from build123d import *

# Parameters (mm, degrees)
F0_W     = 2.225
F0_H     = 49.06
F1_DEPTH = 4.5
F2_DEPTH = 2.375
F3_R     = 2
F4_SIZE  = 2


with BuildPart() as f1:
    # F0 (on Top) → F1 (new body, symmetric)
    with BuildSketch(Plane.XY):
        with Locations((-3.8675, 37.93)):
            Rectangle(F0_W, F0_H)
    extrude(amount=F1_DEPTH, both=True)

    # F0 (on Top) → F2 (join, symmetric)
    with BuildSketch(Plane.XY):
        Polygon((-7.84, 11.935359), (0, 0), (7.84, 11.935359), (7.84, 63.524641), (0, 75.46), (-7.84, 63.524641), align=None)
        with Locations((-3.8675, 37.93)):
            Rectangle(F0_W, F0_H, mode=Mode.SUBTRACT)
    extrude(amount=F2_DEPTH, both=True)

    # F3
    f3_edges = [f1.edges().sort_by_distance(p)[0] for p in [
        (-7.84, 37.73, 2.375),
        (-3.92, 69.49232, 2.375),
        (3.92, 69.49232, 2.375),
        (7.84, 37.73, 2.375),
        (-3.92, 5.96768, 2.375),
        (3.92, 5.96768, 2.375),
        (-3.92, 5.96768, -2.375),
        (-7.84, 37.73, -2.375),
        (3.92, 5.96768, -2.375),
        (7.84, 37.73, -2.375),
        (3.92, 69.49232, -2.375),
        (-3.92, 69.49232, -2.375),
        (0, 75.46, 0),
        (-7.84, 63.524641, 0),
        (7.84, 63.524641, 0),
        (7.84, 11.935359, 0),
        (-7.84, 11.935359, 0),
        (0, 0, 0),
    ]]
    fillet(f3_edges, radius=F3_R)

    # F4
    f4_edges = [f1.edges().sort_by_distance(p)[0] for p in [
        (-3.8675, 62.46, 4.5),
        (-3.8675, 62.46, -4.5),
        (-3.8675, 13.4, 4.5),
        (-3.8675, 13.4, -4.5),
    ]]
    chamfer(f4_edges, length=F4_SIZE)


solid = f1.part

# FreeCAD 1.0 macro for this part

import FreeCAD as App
import Part
import Sketcher
from FreeCAD import Vector


def edges_at(feature, points):
    """Names of the edges that pass closest to the given points."""
    edges = feature.Shape.Edges
    near = lambda p: min(range(len(edges)), key=lambda i: edges[i].distToShape(Part.Vertex(*p))[0])
    return sorted({f"Edge{near(p) + 1}" for p in points})


def add_polygon(sketch, points):
    """Adds a closed chain of lines whose ends are joined by coincident constraints."""
    first, n = sketch.GeometryCount, len(points)
    for a, b in zip(points, points[1:] + points[:1]):
        sketch.addGeometry(Part.LineSegment(App.Vector(*a, 0), App.Vector(*b, 0)), False)
    for i in range(n):
        sketch.addConstraint(Sketcher.Constraint("Coincident", first + i, 2, first + (i + 1) % n, 1))

doc = App.newDocument("Part")
body = doc.addObject("PartDesign::Body", "Body")

# Sketch on XY plane
sketch1 = body.newObject("Sketcher::SketchObject", "Sketch")
sketch1.AttachmentSupport = (doc.getObject("XY_Plane"), [""])
sketch1.MapMode = "FlatFace"
add_polygon(sketch1, [(-5, 62.5), (-5, 13.4), (-2.8, 13.4), (-2.8, 62.5)])  # lines 0-3
sketch1.addConstraint([
    Sketcher.Constraint("Vertical", 0),
    Sketcher.Constraint("Horizontal", 1),
    Sketcher.Constraint("Vertical", 2),
    Sketcher.Constraint("Horizontal", 3),
    Sketcher.Constraint("DistanceY", 0, 2, 0, 1, 49.06),
    Sketcher.Constraint("DistanceY", -1, 1, 0, 2, 13.4),
    Sketcher.Constraint("DistanceX", 1, 1, 1, 2, 2.225),
    Sketcher.Constraint("DistanceX", 0, 2, -1, 1, 4.98),
])
pad1 = body.newObject("PartDesign::Pad", "Pad")
pad1.Profile = sketch1
pad1.Length = 9
pad1.Midplane = True

# Sketch on XY plane
sketch2 = body.newObject("Sketcher::SketchObject", "Sketch001")
sketch2.AttachmentSupport = (doc.getObject("XY_Plane"), [""])
sketch2.MapMode = "FlatFace"
add_polygon(sketch2, [(-7.8, 11.9), (0, 0), (7.8, 11.9), (7.8, 63.5), (0, 75.5), (-7.8, 63.5)])  # lines 0-5
add_polygon(sketch2, [(-2.8, 13.4), (-5, 13.4), (-5, 62.5), (-2.8, 62.5)])  # lines 6-9
sketch2.addConstraint([
    Sketcher.Constraint("Vertical", 2),
    Sketcher.Constraint("Vertical", 5),
    Sketcher.Constraint("Horizontal", 6),
    Sketcher.Constraint("Vertical", 7),
    Sketcher.Constraint("Horizontal", 8),
    Sketcher.Constraint("Vertical", 9),
    Sketcher.Constraint("Coincident", 0, 2, -1, 1),
    Sketcher.Constraint("Symmetric", 2, 2, 4, 2, -2),
    Sketcher.Constraint("PointOnObject", 3, 2, -2),
    Sketcher.Constraint("Parallel", 0, 3),
    Sketcher.Constraint("Parallel", 1, 4),
    Sketcher.Constraint("DistanceY", 7, 2, 3, 2, 13.0),
    Sketcher.Constraint("DistanceY", 7, 1, 7, 2, 49.06),
    Sketcher.Constraint("DistanceY", -1, 1, 6, 2, 13.4),
    Sketcher.Constraint("Distance", 0, 14.28),
    Sketcher.Constraint("DistanceX", 6, 2, 6, 1, 2.225),
    Sketcher.Constraint("DistanceX", -1, 1, 1, 2, 7.84),
    Sketcher.Constraint("DistanceX", 6, 2, -1, 1, 4.98),
])
pad2 = body.newObject("PartDesign::Pad", "Pad001")
pad2.Profile = sketch2
pad2.Length = 4.75
pad2.Midplane = True
doc.recompute()

fillet = body.newObject("PartDesign::Fillet", "Fillet")
fillet.Base = (pad2, edges_at(pad2, [
    (-7.84, 37.73, 2.375),
    (-3.92, 69.492, 2.375),
    (3.92, 69.492, 2.375),
    (7.84, 37.73, 2.375),
    (-3.92, 5.968, 2.375),
    (3.92, 5.968, 2.375),
    (-3.92, 5.968, -2.375),
    (-7.84, 37.73, -2.375),
    (3.92, 5.968, -2.375),
    (7.84, 37.73, -2.375),
    (3.92, 69.492, -2.375),
    (-3.92, 69.492, -2.375),
    (0, 75.46, 0),
    (-7.84, 63.525, 0),
    (7.84, 63.525, 0),
    (7.84, 11.935, 0),
    (-7.84, 11.935, 0),
    (0, 0, 0),
]))
fillet.Radius = 2
doc.recompute()

chamfer = body.newObject("PartDesign::Chamfer", "Chamfer")
chamfer.Base = (fillet, edges_at(fillet, [
    (-3.868, 62.46, 4.5),
    (-3.868, 62.46, -4.5),
    (-3.868, 13.4, 4.5),
    (-3.868, 13.4, -4.5),
]))
chamfer.Size = 2

doc.recompute()
